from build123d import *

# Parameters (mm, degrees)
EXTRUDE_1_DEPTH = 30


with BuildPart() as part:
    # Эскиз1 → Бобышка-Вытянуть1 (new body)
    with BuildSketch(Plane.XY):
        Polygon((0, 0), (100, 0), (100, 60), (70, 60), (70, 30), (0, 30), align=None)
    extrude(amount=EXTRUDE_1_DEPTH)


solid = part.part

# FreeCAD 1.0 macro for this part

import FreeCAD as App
import Part
import Sketcher
from FreeCAD import Vector

doc = App.newDocument("Part")
params = doc.addObject("Spreadsheet::Sheet", "Params")
for row, (alias, value) in enumerate([
    ("sketch1_width", "100 mm"),
    ("sketch1_width2", "30 mm"),
    ("pad1_length", "30 mm"),
], start=1):
    params.set(f"A{row}", alias)
    params.set(f"B{row}", "=" + value)
    params.setAlias(f"B{row}", alias)

body = doc.addObject("PartDesign::Body", "Body")

# Sketch on XY plane
sketch1 = body.newObject("Sketcher::SketchObject", "Sketch")
sketch1.AttachmentSupport = (doc.getObject("XY_Plane"), [""])
sketch1.MapMode = "FlatFace"
sketch1.addGeometry([
    Part.LineSegment(Vector(0, 0, 0), Vector(100, 0, 0)),  # 0
    Part.LineSegment(Vector(100, 0, 0), Vector(100, 60, 0)),  # 1
    Part.LineSegment(Vector(100, 60, 0), Vector(70, 60, 0)),  # 2
    Part.LineSegment(Vector(70, 60, 0), Vector(70, 30, 0)),  # 3
    Part.LineSegment(Vector(70, 30, 0), Vector(0, 30, 0)),  # 4
    Part.LineSegment(Vector(0, 30, 0), Vector(0, 0, 0)),  # 5
], False)
sketch1.addConstraint([
    Sketcher.Constraint("Coincident", 0, 2, 1, 1),
    Sketcher.Constraint("Coincident", 1, 2, 2, 1),
    Sketcher.Constraint("Coincident", 2, 2, 3, 1),
    Sketcher.Constraint("Coincident", 3, 2, 4, 1),
    Sketcher.Constraint("Coincident", 4, 2, 5, 1),
    Sketcher.Constraint("Coincident", 5, 2, 0, 1),
    Sketcher.Constraint("Horizontal", 0),
    Sketcher.Constraint("Vertical", 1),
    Sketcher.Constraint("Horizontal", 2),
    Sketcher.Constraint("Vertical", 3),
    Sketcher.Constraint("Horizontal", 4),
    Sketcher.Constraint("Vertical", 5),
    Sketcher.Constraint("Coincident", 5, 2, -1, 1),
    Sketcher.Constraint("Equal", 2, 3),
    Sketcher.Constraint("Equal", 3, 5),
    Sketcher.Constraint("DistanceX", 0, 1, 0, 2, 100.0),
    Sketcher.Constraint("DistanceX", 2, 2, 2, 1, 30.0),
])
sketch1.setExpression("Constraints[15]", "Params.sketch1_width")
sketch1.setExpression("Constraints[16]", "Params.sketch1_width2")
pad1 = body.newObject("PartDesign::Pad", "Pad")
pad1.Profile = sketch1
pad1.setExpression("Length", "Params.pad1_length")

doc.recompute()
